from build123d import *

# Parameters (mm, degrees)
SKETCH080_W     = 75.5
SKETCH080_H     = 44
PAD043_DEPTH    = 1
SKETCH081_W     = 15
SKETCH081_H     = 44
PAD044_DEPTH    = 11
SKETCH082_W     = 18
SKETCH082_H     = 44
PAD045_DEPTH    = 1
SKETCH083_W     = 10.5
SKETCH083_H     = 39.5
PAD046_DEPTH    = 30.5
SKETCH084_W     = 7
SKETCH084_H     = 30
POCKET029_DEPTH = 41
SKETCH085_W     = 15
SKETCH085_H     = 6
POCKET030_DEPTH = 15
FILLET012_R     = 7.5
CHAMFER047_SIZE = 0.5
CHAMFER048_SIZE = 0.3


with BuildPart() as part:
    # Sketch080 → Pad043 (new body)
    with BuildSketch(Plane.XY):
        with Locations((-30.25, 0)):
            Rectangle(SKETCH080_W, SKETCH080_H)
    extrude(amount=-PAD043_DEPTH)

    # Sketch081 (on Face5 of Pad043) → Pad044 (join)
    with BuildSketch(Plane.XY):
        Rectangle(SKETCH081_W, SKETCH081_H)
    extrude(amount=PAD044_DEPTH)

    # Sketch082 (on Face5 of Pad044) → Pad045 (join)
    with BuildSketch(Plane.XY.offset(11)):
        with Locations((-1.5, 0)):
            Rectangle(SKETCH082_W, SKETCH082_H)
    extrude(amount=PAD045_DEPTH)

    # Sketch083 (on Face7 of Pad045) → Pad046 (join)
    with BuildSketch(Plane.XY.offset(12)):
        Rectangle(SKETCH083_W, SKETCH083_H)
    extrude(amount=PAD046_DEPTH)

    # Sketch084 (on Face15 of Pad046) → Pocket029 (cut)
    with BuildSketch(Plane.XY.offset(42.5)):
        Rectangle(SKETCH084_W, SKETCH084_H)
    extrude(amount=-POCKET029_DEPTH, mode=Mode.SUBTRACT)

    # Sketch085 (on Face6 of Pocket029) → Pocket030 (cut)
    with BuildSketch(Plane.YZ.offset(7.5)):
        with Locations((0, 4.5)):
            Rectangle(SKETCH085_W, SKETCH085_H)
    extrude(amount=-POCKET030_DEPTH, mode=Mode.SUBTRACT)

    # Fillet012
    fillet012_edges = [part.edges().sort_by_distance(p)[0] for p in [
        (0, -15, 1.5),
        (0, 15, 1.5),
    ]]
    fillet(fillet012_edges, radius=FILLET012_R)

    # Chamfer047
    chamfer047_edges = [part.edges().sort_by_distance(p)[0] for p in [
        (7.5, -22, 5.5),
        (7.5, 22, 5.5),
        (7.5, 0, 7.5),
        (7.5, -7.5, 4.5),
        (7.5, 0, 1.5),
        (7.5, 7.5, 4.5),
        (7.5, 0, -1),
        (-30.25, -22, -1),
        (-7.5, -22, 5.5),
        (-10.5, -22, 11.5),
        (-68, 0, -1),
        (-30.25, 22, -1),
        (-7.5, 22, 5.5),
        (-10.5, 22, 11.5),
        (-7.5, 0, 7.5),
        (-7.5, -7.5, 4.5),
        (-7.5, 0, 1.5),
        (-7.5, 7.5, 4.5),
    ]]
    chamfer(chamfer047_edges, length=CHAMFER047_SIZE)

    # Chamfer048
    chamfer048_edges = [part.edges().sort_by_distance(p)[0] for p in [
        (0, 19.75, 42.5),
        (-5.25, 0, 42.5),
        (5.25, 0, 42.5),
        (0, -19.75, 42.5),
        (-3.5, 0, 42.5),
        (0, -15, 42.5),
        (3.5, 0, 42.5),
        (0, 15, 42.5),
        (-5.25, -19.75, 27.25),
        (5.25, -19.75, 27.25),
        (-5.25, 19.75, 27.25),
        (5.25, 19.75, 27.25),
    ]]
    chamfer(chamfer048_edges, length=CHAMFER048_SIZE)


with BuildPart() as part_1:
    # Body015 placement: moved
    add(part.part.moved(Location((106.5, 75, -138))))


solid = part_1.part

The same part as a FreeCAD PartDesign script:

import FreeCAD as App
import Part
import Sketcher

V = App.Vector


def edges_at(feature, points):
    """Names of the edges that pass closest to the given points."""
    edges = feature.Shape.Edges
    near = lambda p: min(range(len(edges)), key=lambda i: edges[i].distToShape(Part.Vertex(*p))[0])
    return sorted({f"Edge{near(p) + 1}" for p in points})


def add_polygon(sketch, points):
    """Adds a closed chain of lines whose ends are joined by coincident constraints."""
    first, n = sketch.GeometryCount, len(points)
    for a, b in zip(points, points[1:] + points[:1]):
        sketch.addGeometry(Part.LineSegment(App.Vector(*a, 0), App.Vector(*b, 0)), False)
    for i in range(n):
        sketch.addConstraint(Sketcher.Constraint("Coincident", first + i, 2, first + (i + 1) % n, 1))

doc = App.newDocument("Part")
body = doc.addObject("PartDesign::Body", "Body")

sketch1 = doc.addObject("Sketcher::SketchObject", "Sketch")
body.addObject(sketch1)
sketch1.AttachmentSupport = (doc.XY_Plane, [""])
sketch1.MapMode = "FlatFace"
add_polygon(sketch1, [(-68, 22), (-68, -22), (8, -22), (8, 22)])
sketch1.addConstraint(Sketcher.Constraint("Vertical", 0))
sketch1.addConstraint(Sketcher.Constraint("Horizontal", 1))
sketch1.addConstraint(Sketcher.Constraint("Vertical", 2))
sketch1.addConstraint(Sketcher.Constraint("Horizontal", 3))
sketch1.addConstraint(Sketcher.Constraint("DistanceY", 0, 2, 0, 1, 44.0))
sketch1.addConstraint(Sketcher.Constraint("DistanceX", 1, 1, 1, 2, 75.5))
sketch1.addConstraint(Sketcher.Constraint("DistanceX", 0, 2, -1, 1, 68.0))
sketch1.addConstraint(Sketcher.Constraint("DistanceY", 0, 2, -1, 1, 22.0))
pad1 = doc.addObject("PartDesign::Pad", "Pad")
body.addObject(pad1)
pad1.Profile = sketch1
pad1.Length = 1
pad1.Reversed = True

sketch2 = doc.addObject("Sketcher::SketchObject", "Sketch001")
body.addObject(sketch2)
sketch2.AttachmentSupport = (doc.XY_Plane, [""])
sketch2.MapMode = "FlatFace"
add_polygon(sketch2, [(-8, 22), (-8, -22), (8, -22), (8, 22)])
sketch2.addConstraint(Sketcher.Constraint("Vertical", 0))
sketch2.addConstraint(Sketcher.Constraint("Horizontal", 1))
sketch2.addConstraint(Sketcher.Constraint("Vertical", 2))
sketch2.addConstraint(Sketcher.Constraint("Horizontal", 3))
sketch2.addConstraint(Sketcher.Constraint("Symmetric", 0, 2, 2, 2, -1, 1))
sketch2.addConstraint(Sketcher.Constraint("DistanceX", 1, 1, 1, 2, 15.0))
sketch2.addConstraint(Sketcher.Constraint("DistanceY", 0, 2, 0, 1, 44.0))
pad2 = doc.addObject("PartDesign::Pad", "Pad001")
body.addObject(pad2)
pad2.Profile = sketch2
pad2.Length = 11

sketch3 = doc.addObject("Sketcher::SketchObject", "Sketch002")
body.addObject(sketch3)
sketch3.AttachmentSupport = (doc.XY_Plane, [""])
sketch3.MapMode = "FlatFace"
sketch3.AttachmentOffset = App.Placement(V(0, 0, 11), App.Rotation())
add_polygon(sketch3, [(-10, 22), (-10, -22), (8, -22), (8, 22)])
sketch3.addConstraint(Sketcher.Constraint("Vertical", 0))
sketch3.addConstraint(Sketcher.Constraint("Horizontal", 1))
sketch3.addConstraint(Sketcher.Constraint("Vertical", 2))
sketch3.addConstraint(Sketcher.Constraint("Horizontal", 3))
sketch3.addConstraint(Sketcher.Constraint("DistanceX", 1, 1, 1, 2, 18.0))
sketch3.addConstraint(Sketcher.Constraint("DistanceY", 0, 2, 0, 1, 44.0))
sketch3.addConstraint(Sketcher.Constraint("DistanceY", 0, 2, -1, 1, 22.0))
sketch3.addConstraint(Sketcher.Constraint("DistanceX", 0, 2, -1, 1, 10.5))
pad3 = doc.addObject("PartDesign::Pad", "Pad002")
body.addObject(pad3)
pad3.Profile = sketch3
pad3.Length = 1

sketch4 = doc.addObject("Sketcher::SketchObject", "Sketch003")
body.addObject(sketch4)
sketch4.AttachmentSupport = (doc.XY_Plane, [""])
sketch4.MapMode = "FlatFace"
sketch4.AttachmentOffset = App.Placement(V(0, 0, 12), App.Rotation())
add_polygon(sketch4, [(-5, 20), (-5, -20), (5, -20), (5, 20)])
sketch4.addConstraint(Sketcher.Constraint("Vertical", 0))
sketch4.addConstraint(Sketcher.Constraint("Horizontal", 1))
sketch4.addConstraint(Sketcher.Constraint("Vertical", 2))
sketch4.addConstraint(Sketcher.Constraint("Horizontal", 3))
sketch4.addConstraint(Sketcher.Constraint("Symmetric", 0, 2, 2, 2, -1, 1))
sketch4.addConstraint(Sketcher.Constraint("DistanceX", 1, 1, 1, 2, 10.5))
sketch4.addConstraint(Sketcher.Constraint("DistanceY", 0, 2, 0, 1, 39.5))
pad4 = doc.addObject("PartDesign::Pad", "Pad003")
body.addObject(pad4)
pad4.Profile = sketch4
pad4.Length = 30.5

sketch5 = doc.addObject("Sketcher::SketchObject", "Sketch004")
body.addObject(sketch5)
sketch5.AttachmentSupport = (doc.XY_Plane, [""])
sketch5.MapMode = "FlatFace"
sketch5.AttachmentOffset = App.Placement(V(0, 0, 42.5), App.Rotation())
add_polygon(sketch5, [(-4, 15), (-4, -15), (4, -15), (4, 15)])
sketch5.addConstraint(Sketcher.Constraint("Vertical", 0))
sketch5.addConstraint(Sketcher.Constraint("Horizontal", 1))
sketch5.addConstraint(Sketcher.Constraint("Vertical", 2))
sketch5.addConstraint(Sketcher.Constraint("Horizontal", 3))
sketch5.addConstraint(Sketcher.Constraint("Symmetric", 0, 2, 2, 2, -1, 1))
sketch5.addConstraint(Sketcher.Constraint("DistanceX", 1, 1, 1, 2, 7.0))
sketch5.addConstraint(Sketcher.Constraint("DistanceY", 0, 2, 0, 1, 30.0))
pocket1 = doc.addObject("PartDesign::Pocket", "Pocket")
body.addObject(pocket1)
pocket1.Profile = sketch5
pocket1.Length = 41

sketch6 = doc.addObject("Sketcher::SketchObject", "Sketch005")
body.addObject(sketch6)
sketch6.AttachmentSupport = (doc.YZ_Plane, [""])
sketch6.MapMode = "FlatFace"
sketch6.AttachmentOffset = App.Placement(V(0, 0, 7.5), App.Rotation())
add_polygon(sketch6, [(-8, 8), (-8, 2), (8, 2), (8, 8)])
sketch6.addConstraint(Sketcher.Constraint("Vertical", 0))
sketch6.addConstraint(Sketcher.Constraint("Horizontal", 1))
sketch6.addConstraint(Sketcher.Constraint("Vertical", 2))
sketch6.addConstraint(Sketcher.Constraint("Horizontal", 3))
sketch6.addConstraint(Sketcher.Constraint("DistanceX", 1, 1, 1, 2, 15.0))
sketch6.addConstraint(Sketcher.Constraint("DistanceY", 0, 2, 0, 1, 6.0))
sketch6.addConstraint(Sketcher.Constraint("DistanceX", 0, 2, -1, 1, 7.5))
sketch6.addConstraint(Sketcher.Constraint("DistanceY", -1, 1, 0, 2, 1.5))
pocket2 = doc.addObject("PartDesign::Pocket", "Pocket001")
body.addObject(pocket2)
pocket2.Profile = sketch6
pocket2.Length = 15
doc.recompute()

fillet = doc.addObject("PartDesign::Fillet", "Fillet")
body.addObject(fillet)
fillet.Base = (pocket2, edges_at(pocket2, [(0, -15, 1.5), (0, 15, 1.5)]))
fillet.Radius = 7.5
doc.recompute()

chamfer = doc.addObject("PartDesign::Chamfer", "Chamfer")
body.addObject(chamfer)
chamfer.Base = (fillet, edges_at(fillet, [
    (7.5, -22, 5.5),
    (7.5, 22, 5.5),
    (7.5, 0, 7.5),
    (7.5, -7.5, 4.5),
    (7.5, 0, 1.5),
    (7.5, 7.5, 4.5),
    (7.5, 0, -1),
    (-30.25, -22, -1),
    (-7.5, -22, 5.5),
    (-10.5, -22, 11.5),
    (-68, 0, -1),
    (-30.25, 22, -1),
    (-7.5, 22, 5.5),
    (-10.5, 22, 11.5),
    (-7.5, 0, 7.5),
    (-7.5, -7.5, 4.5),
    (-7.5, 0, 1.5),
    (-7.5, 7.5, 4.5),
]))
chamfer.Size = 0.5
doc.recompute()

chamfer2 = doc.addObject("PartDesign::Chamfer", "Chamfer001")
body.addObject(chamfer2)
chamfer2.Base = (chamfer, edges_at(chamfer, [
    (0, 19.75, 42.5),
    (-5.25, 0, 42.5),
    (5.25, 0, 42.5),
    (0, -19.75, 42.5),
    (-3.5, 0, 42.5),
    (0, -15, 42.5),
    (3.5, 0, 42.5),
    (0, 15, 42.5),
    (-5.25, -19.75, 27.25),
    (5.25, -19.75, 27.25),
    (-5.25, 19.75, 27.25),
    (5.25, 19.75, 27.25),
]))
chamfer2.Size = 0.3
body2 = doc.addObject("PartDesign::Body", "Body001")
doc.recompute()

body.Placement = App.Placement(V(106.5, 75, -138), App.Rotation(V(0, 0, 1), 0))
boolean = doc.addObject("PartDesign::Boolean", "Boolean")
body2.addObject(boolean)
boolean.Type = "Fuse"
boolean.addObjects([body])

doc.recompute()
